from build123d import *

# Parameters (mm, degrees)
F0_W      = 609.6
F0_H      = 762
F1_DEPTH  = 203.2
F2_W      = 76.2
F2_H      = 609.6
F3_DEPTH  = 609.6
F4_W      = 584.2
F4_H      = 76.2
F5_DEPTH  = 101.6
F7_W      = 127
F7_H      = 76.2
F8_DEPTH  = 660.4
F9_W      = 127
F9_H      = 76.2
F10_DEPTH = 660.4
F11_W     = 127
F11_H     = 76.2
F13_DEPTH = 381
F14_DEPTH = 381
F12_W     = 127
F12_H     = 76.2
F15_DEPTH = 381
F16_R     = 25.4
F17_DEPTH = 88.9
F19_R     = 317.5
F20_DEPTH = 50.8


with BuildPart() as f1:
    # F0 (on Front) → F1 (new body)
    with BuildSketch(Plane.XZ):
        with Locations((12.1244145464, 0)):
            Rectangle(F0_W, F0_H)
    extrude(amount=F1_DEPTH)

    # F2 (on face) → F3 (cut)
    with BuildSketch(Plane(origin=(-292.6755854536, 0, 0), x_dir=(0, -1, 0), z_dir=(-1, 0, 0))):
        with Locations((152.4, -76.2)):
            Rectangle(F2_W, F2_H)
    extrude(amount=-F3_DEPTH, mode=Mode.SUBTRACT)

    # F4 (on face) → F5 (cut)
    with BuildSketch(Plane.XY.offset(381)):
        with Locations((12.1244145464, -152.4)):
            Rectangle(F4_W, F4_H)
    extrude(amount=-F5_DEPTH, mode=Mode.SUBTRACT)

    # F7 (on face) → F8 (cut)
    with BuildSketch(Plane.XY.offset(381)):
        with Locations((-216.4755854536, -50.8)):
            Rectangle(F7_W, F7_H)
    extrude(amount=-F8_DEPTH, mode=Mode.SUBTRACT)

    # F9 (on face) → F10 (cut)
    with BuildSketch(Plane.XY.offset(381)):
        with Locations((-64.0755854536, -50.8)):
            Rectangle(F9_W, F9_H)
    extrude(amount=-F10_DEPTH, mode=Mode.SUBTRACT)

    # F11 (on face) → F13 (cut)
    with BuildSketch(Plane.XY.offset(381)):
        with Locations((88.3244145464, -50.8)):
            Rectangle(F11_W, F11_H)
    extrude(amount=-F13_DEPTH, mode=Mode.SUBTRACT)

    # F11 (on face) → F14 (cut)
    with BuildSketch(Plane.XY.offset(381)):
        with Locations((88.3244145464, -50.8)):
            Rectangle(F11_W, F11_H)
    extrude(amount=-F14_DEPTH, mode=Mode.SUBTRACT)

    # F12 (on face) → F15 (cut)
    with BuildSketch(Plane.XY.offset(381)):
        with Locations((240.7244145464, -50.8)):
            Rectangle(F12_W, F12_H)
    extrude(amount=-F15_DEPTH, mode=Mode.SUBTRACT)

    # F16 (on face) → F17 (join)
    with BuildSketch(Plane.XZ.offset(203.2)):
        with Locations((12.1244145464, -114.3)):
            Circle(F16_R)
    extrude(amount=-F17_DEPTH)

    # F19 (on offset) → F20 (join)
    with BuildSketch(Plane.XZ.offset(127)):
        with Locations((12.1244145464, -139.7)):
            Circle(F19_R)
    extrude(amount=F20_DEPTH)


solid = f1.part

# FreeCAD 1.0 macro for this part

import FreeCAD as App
import Part
import Sketcher

V = App.Vector
Q = App.Units.Quantity

doc = App.newDocument("Part")
body = doc.addObject("PartDesign::Body", "Body")

# Sketch on XZ plane
sketch1 = body.newObject("Sketcher::SketchObject", "Sketch")
sketch1.AttachmentSupport = (doc.getObject("XZ_Plane"), [""])
sketch1.MapMode = "FlatFace"
sketch1.addGeometry(Part.LineSegment(V(-293, 381, 0), V(-293, -381, 0)), False)
sketch1.addGeometry(Part.LineSegment(V(-293, -381, 0), V(317, -381, 0)), False)
sketch1.addGeometry(Part.LineSegment(V(317, -381, 0), V(317, 381, 0)), False)
sketch1.addGeometry(Part.LineSegment(V(317, 381, 0), V(-293, 381, 0)), False)
sketch1.addConstraint(Sketcher.Constraint("Coincident", 0, 2, 1, 1))
sketch1.addConstraint(Sketcher.Constraint("Coincident", 1, 2, 2, 1))
sketch1.addConstraint(Sketcher.Constraint("Coincident", 2, 2, 3, 1))
sketch1.addConstraint(Sketcher.Constraint("Coincident", 3, 2, 0, 1))
sketch1.addConstraint(Sketcher.Constraint("Vertical", 0))
sketch1.addConstraint(Sketcher.Constraint("Horizontal", 1))
sketch1.addConstraint(Sketcher.Constraint("Vertical", 2))
sketch1.addConstraint(Sketcher.Constraint("Horizontal", 3))
sketch1.addConstraint(Sketcher.Constraint("DistanceX", 1, 1, 1, 2, Q("24 in")))
sketch1.addConstraint(Sketcher.Constraint("DistanceY", 0, 2, 0, 1, Q("30 in")))
sketch1.addConstraint(Sketcher.Constraint("DistanceY", 0, 2, -1, 1, Q("15 in")))
sketch1.addConstraint(Sketcher.Constraint("DistanceX", 0, 2, -1, 1, Q("292.675585 mm")))
pad1 = body.newObject("PartDesign::Pad", "Pad")
pad1.Profile = sketch1
pad1.Length = Q("8 in")

# Sketch on YZ plane
sketch2 = body.newObject("Sketcher::SketchObject", "Sketch001")
sketch2.AttachmentSupport = (doc.getObject("YZ_Plane"), [""])
sketch2.MapMode = "FlatFace"
sketch2.AttachmentOffset = App.Placement(V(0, 0, -292.675585), App.Rotation())
sketch2.addGeometry(Part.LineSegment(V(-114, 229, 0), V(-114, -381, 0)), False)
sketch2.addGeometry(Part.LineSegment(V(-114, -381, 0), V(-190, -381, 0)), False)
sketch2.addGeometry(Part.LineSegment(V(-190, -381, 0), V(-190, 229, 0)), False)
sketch2.addGeometry(Part.LineSegment(V(-190, 229, 0), V(-114, 229, 0)), False)
sketch2.addConstraint(Sketcher.Constraint("Coincident", 0, 2, 1, 1))
sketch2.addConstraint(Sketcher.Constraint("Coincident", 1, 2, 2, 1))
sketch2.addConstraint(Sketcher.Constraint("Coincident", 2, 2, 3, 1))
sketch2.addConstraint(Sketcher.Constraint("Coincident", 3, 2, 0, 1))
sketch2.addConstraint(Sketcher.Constraint("Vertical", 0))
sketch2.addConstraint(Sketcher.Constraint("Horizontal", 1))
sketch2.addConstraint(Sketcher.Constraint("Vertical", 2))
sketch2.addConstraint(Sketcher.Constraint("Horizontal", 3))
sketch2.addConstraint(Sketcher.Constraint("DistanceX", 1, 2, 1, 1, Q("3 in")))
sketch2.addConstraint(Sketcher.Constraint("DistanceY", 0, 2, 0, 1, Q("24 in")))
sketch2.addConstraint(Sketcher.Constraint("DistanceY", 0, 2, -1, 1, Q("15 in")))
sketch2.addConstraint(Sketcher.Constraint("DistanceX", 0, 2, -1, 1, Q("4.5 in")))
pocket1 = body.newObject("PartDesign::Pocket", "Pocket")
pocket1.Profile = sketch2
pocket1.Length = Q("24 in")
pocket1.Reversed = True

# Sketch on XY plane
sketch3 = body.newObject("Sketcher::SketchObject", "Sketch002")
sketch3.AttachmentSupport = (doc.getObject("XY_Plane"), [""])
sketch3.MapMode = "FlatFace"
sketch3.AttachmentOffset = App.Placement(V(0, 0, 15 * 25.4), App.Rotation())
sketch3.addGeometry(Part.LineSegment(V(-280, -114, 0), V(-280, -190, 0)), False)
sketch3.addGeometry(Part.LineSegment(V(-280, -190, 0), V(304, -190, 0)), False)
sketch3.addGeometry(Part.LineSegment(V(304, -190, 0), V(304, -114, 0)), False)
sketch3.addGeometry(Part.LineSegment(V(304, -114, 0), V(-280, -114, 0)), False)
sketch3.addConstraint(Sketcher.Constraint("Coincident", 0, 2, 1, 1))
sketch3.addConstraint(Sketcher.Constraint("Coincident", 1, 2, 2, 1))
sketch3.addConstraint(Sketcher.Constraint("Coincident", 2, 2, 3, 1))
sketch3.addConstraint(Sketcher.Constraint("Coincident", 3, 2, 0, 1))
sketch3.addConstraint(Sketcher.Constraint("Vertical", 0))
sketch3.addConstraint(Sketcher.Constraint("Horizontal", 1))
sketch3.addConstraint(Sketcher.Constraint("Vertical", 2))
sketch3.addConstraint(Sketcher.Constraint("Horizontal", 3))
sketch3.addConstraint(Sketcher.Constraint("DistanceX", 1, 1, 1, 2, Q("23 in")))
sketch3.addConstraint(Sketcher.Constraint("DistanceY", 0, 2, 0, 1, Q("3 in")))
sketch3.addConstraint(Sketcher.Constraint("DistanceY", 0, 2, -1, 1, Q("7.5 in")))
sketch3.addConstraint(Sketcher.Constraint("DistanceX", 0, 2, -1, 1, Q("279.975585 mm")))
pocket2 = body.newObject("PartDesign::Pocket", "Pocket001")
pocket2.Profile = sketch3
pocket2.Length = Q("4 in")

# Sketch on XY plane
sketch4 = body.newObject("Sketcher::SketchObject", "Sketch003")
sketch4.AttachmentSupport = (doc.getObject("XY_Plane"), [""])
sketch4.MapMode = "FlatFace"
sketch4.AttachmentOffset = App.Placement(V(0, 0, 15 * 25.4), App.Rotation())
sketch4.addGeometry(Part.LineSegment(V(-280, -13, 0), V(-280, -89, 0)), False)
sketch4.addGeometry(Part.LineSegment(V(-280, -89, 0), V(-153, -89, 0)), False)
sketch4.addGeometry(Part.LineSegment(V(-153, -89, 0), V(-153, -13, 0)), False)
sketch4.addGeometry(Part.LineSegment(V(-153, -13, 0), V(-280, -13, 0)), False)
sketch4.addConstraint(Sketcher.Constraint("Coincident", 0, 2, 1, 1))
sketch4.addConstraint(Sketcher.Constraint("Coincident", 1, 2, 2, 1))
sketch4.addConstraint(Sketcher.Constraint("Coincident", 2, 2, 3, 1))
sketch4.addConstraint(Sketcher.Constraint("Coincident", 3, 2, 0, 1))
sketch4.addConstraint(Sketcher.Constraint("Vertical", 0))
sketch4.addConstraint(Sketcher.Constraint("Horizontal", 1))
sketch4.addConstraint(Sketcher.Constraint("Vertical", 2))
sketch4.addConstraint(Sketcher.Constraint("Horizontal", 3))
sketch4.addConstraint(Sketcher.Constraint("DistanceX", 1, 1, 1, 2, Q("5 in")))
sketch4.addConstraint(Sketcher.Constraint("DistanceY", 0, 2, 0, 1, Q("3 in")))
sketch4.addConstraint(Sketcher.Constraint("DistanceY", 0, 2, -1, 1, Q("3.5 in")))
sketch4.addConstraint(Sketcher.Constraint("DistanceX", 0, 2, -1, 1, Q("279.975585 mm")))
pocket3 = body.newObject("PartDesign::Pocket", "Pocket002")
pocket3.Profile = sketch4
pocket3.Length = Q("26 in")

# Sketch on XY plane
sketch5 = body.newObject("Sketcher::SketchObject", "Sketch004")
sketch5.AttachmentSupport = (doc.getObject("XY_Plane"), [""])
sketch5.MapMode = "FlatFace"
sketch5.AttachmentOffset = App.Placement(V(0, 0, 15 * 25.4), App.Rotation())
sketch5.addGeometry(Part.LineSegment(V(-128, -13, 0), V(-128, -89, 0)), False)
sketch5.addGeometry(Part.LineSegment(V(-128, -89, 0), V(-1, -89, 0)), False)
sketch5.addGeometry(Part.LineSegment(V(-1, -89, 0), V(-1, -13, 0)), False)
sketch5.addGeometry(Part.LineSegment(V(-1, -13, 0), V(-128, -13, 0)), False)
sketch5.addConstraint(Sketcher.Constraint("Coincident", 0, 2, 1, 1))
sketch5.addConstraint(Sketcher.Constraint("Coincident", 1, 2, 2, 1))
sketch5.addConstraint(Sketcher.Constraint("Coincident", 2, 2, 3, 1))
sketch5.addConstraint(Sketcher.Constraint("Coincident", 3, 2, 0, 1))
sketch5.addConstraint(Sketcher.Constraint("Vertical", 0))
sketch5.addConstraint(Sketcher.Constraint("Horizontal", 1))
sketch5.addConstraint(Sketcher.Constraint("Vertical", 2))
sketch5.addConstraint(Sketcher.Constraint("Horizontal", 3))
sketch5.addConstraint(Sketcher.Constraint("DistanceX", 1, 1, 1, 2, Q("5 in")))
sketch5.addConstraint(Sketcher.Constraint("DistanceY", 0, 2, 0, 1, Q("3 in")))
sketch5.addConstraint(Sketcher.Constraint("DistanceY", 0, 2, -1, 1, Q("3.5 in")))
sketch5.addConstraint(Sketcher.Constraint("DistanceX", 0, 2, -1, 1, Q("127.575585 mm")))
pocket4 = body.newObject("PartDesign::Pocket", "Pocket003")
pocket4.Profile = sketch5
pocket4.Length = Q("26 in")

# Sketch on XY plane
sketch6 = body.newObject("Sketcher::SketchObject", "Sketch005")
sketch6.AttachmentSupport = (doc.getObject("XY_Plane"), [""])
sketch6.MapMode = "FlatFace"
sketch6.AttachmentOffset = App.Placement(V(0, 0, 15 * 25.4), App.Rotation())
sketch6.addGeometry(Part.LineSegment(V(25, -13, 0), V(25, -89, 0)), False)
sketch6.addGeometry(Part.LineSegment(V(25, -89, 0), V(152, -89, 0)), False)
sketch6.addGeometry(Part.LineSegment(V(152, -89, 0), V(152, -13, 0)), False)
sketch6.addGeometry(Part.LineSegment(V(152, -13, 0), V(25, -13, 0)), False)
sketch6.addConstraint(Sketcher.Constraint("Coincident", 0, 2, 1, 1))
sketch6.addConstraint(Sketcher.Constraint("Coincident", 1, 2, 2, 1))
sketch6.addConstraint(Sketcher.Constraint("Coincident", 2, 2, 3, 1))
sketch6.addConstraint(Sketcher.Constraint("Coincident", 3, 2, 0, 1))
sketch6.addConstraint(Sketcher.Constraint("Vertical", 0))
sketch6.addConstraint(Sketcher.Constraint("Horizontal", 1))
sketch6.addConstraint(Sketcher.Constraint("Vertical", 2))
sketch6.addConstraint(Sketcher.Constraint("Horizontal", 3))
sketch6.addConstraint(Sketcher.Constraint("DistanceX", 1, 1, 1, 2, Q("5 in")))
sketch6.addConstraint(Sketcher.Constraint("DistanceY", 0, 2, 0, 1, Q("3 in")))
sketch6.addConstraint(Sketcher.Constraint("DistanceY", 0, 2, -1, 1, Q("3.5 in")))
sketch6.addConstraint(Sketcher.Constraint("DistanceX", -1, 1, 0, 2, Q("24.824415 mm")))
pocket5 = body.newObject("PartDesign::Pocket", "Pocket004")
pocket5.Profile = sketch6
pocket5.Length = Q("15 in")

# Sketch on XY plane
sketch7 = body.newObject("Sketcher::SketchObject", "Sketch006")
sketch7.AttachmentSupport = (doc.getObject("XY_Plane"), [""])
sketch7.MapMode = "FlatFace"
sketch7.AttachmentOffset = App.Placement(V(0, 0, 15 * 25.4), App.Rotation())
sketch7.addGeometry(Part.LineSegment(V(25, -13, 0), V(25, -89, 0)), False)
sketch7.addGeometry(Part.LineSegment(V(25, -89, 0), V(152, -89, 0)), False)
sketch7.addGeometry(Part.LineSegment(V(152, -89, 0), V(152, -13, 0)), False)
sketch7.addGeometry(Part.LineSegment(V(152, -13, 0), V(25, -13, 0)), False)
sketch7.addConstraint(Sketcher.Constraint("Coincident", 0, 2, 1, 1))
sketch7.addConstraint(Sketcher.Constraint("Coincident", 1, 2, 2, 1))
sketch7.addConstraint(Sketcher.Constraint("Coincident", 2, 2, 3, 1))
sketch7.addConstraint(Sketcher.Constraint("Coincident", 3, 2, 0, 1))
sketch7.addConstraint(Sketcher.Constraint("Vertical", 0))
sketch7.addConstraint(Sketcher.Constraint("Horizontal", 1))
sketch7.addConstraint(Sketcher.Constraint("Vertical", 2))
sketch7.addConstraint(Sketcher.Constraint("Horizontal", 3))
sketch7.addConstraint(Sketcher.Constraint("DistanceX", 1, 1, 1, 2, Q("5 in")))
sketch7.addConstraint(Sketcher.Constraint("DistanceY", 0, 2, 0, 1, Q("3 in")))
sketch7.addConstraint(Sketcher.Constraint("DistanceY", 0, 2, -1, 1, Q("3.5 in")))
sketch7.addConstraint(Sketcher.Constraint("DistanceX", -1, 1, 0, 2, Q("24.824415 mm")))
pocket6 = body.newObject("PartDesign::Pocket", "Pocket005")
pocket6.Profile = sketch7
pocket6.Length = Q("15 in")

# Sketch on XY plane
sketch8 = body.newObject("Sketcher::SketchObject", "Sketch007")
sketch8.AttachmentSupport = (doc.getObject("XY_Plane"), [""])
sketch8.MapMode = "FlatFace"
sketch8.AttachmentOffset = App.Placement(V(0, 0, 15 * 25.4), App.Rotation())
sketch8.addGeometry(Part.LineSegment(V(177, -13, 0), V(177, -89, 0)), False)
sketch8.addGeometry(Part.LineSegment(V(177, -89, 0), V(304, -89, 0)), False)
sketch8.addGeometry(Part.LineSegment(V(304, -89, 0), V(304, -13, 0)), False)
sketch8.addGeometry(Part.LineSegment(V(304, -13, 0), V(177, -13, 0)), False)
sketch8.addConstraint(Sketcher.Constraint("Coincident", 0, 2, 1, 1))
sketch8.addConstraint(Sketcher.Constraint("Coincident", 1, 2, 2, 1))
sketch8.addConstraint(Sketcher.Constraint("Coincident", 2, 2, 3, 1))
sketch8.addConstraint(Sketcher.Constraint("Coincident", 3, 2, 0, 1))
sketch8.addConstraint(Sketcher.Constraint("Vertical", 0))
sketch8.addConstraint(Sketcher.Constraint("Horizontal", 1))
sketch8.addConstraint(Sketcher.Constraint("Vertical", 2))
sketch8.addConstraint(Sketcher.Constraint("Horizontal", 3))
sketch8.addConstraint(Sketcher.Constraint("DistanceX", 1, 1, 1, 2, Q("5 in")))
sketch8.addConstraint(Sketcher.Constraint("DistanceY", 0, 2, 0, 1, Q("3 in")))
sketch8.addConstraint(Sketcher.Constraint("DistanceY", 0, 2, -1, 1, Q("3.5 in")))
sketch8.addConstraint(Sketcher.Constraint("DistanceX", -1, 1, 0, 2, Q("177.224415 mm")))
pocket7 = body.newObject("PartDesign::Pocket", "Pocket006")
pocket7.Profile = sketch8
pocket7.Length = Q("15 in")

# Sketch on XZ plane
sketch9 = body.newObject("Sketcher::SketchObject", "Sketch008")
sketch9.AttachmentSupport = (doc.getObject("XZ_Plane"), [""])
sketch9.MapMode = "FlatFace"
sketch9.AttachmentOffset = App.Placement(V(0, 0, 8 * 25.4), App.Rotation())
sketch9.addGeometry(Part.Circle(V(12, -114, 0), V(0, 0, 1), 25), False)
sketch9.addConstraint(Sketcher.Constraint("Diameter", 0, Q("2 in")))
sketch9.addConstraint(Sketcher.Constraint("DistanceY", 0, 3, -1, 1, Q("4.5 in")))
sketch9.addConstraint(Sketcher.Constraint("DistanceX", -1, 1, 0, 3, Q("12.124415 mm")))
pad2 = body.newObject("PartDesign::Pad", "Pad001")
pad2.Profile = sketch9
pad2.Length = Q("3.5 in")
pad2.Reversed = True

# Sketch on XZ plane
sketch10 = body.newObject("Sketcher::SketchObject", "Sketch009")
sketch10.AttachmentSupport = (doc.getObject("XZ_Plane"), [""])
sketch10.MapMode = "FlatFace"
sketch10.AttachmentOffset = App.Placement(V(0, 0, 5 * 25.4), App.Rotation())
sketch10.addGeometry(Part.Circle(V(12, -140, 0), V(0, 0, 1), 318), False)
sketch10.addConstraint(Sketcher.Constraint("Diameter", 0, Q("25 in")))
sketch10.addConstraint(Sketcher.Constraint("DistanceY", 0, 3, -1, 1, Q("5.5 in")))
sketch10.addConstraint(Sketcher.Constraint("DistanceX", -1, 1, 0, 3, Q("12.124415 mm")))
pad3 = body.newObject("PartDesign::Pad", "Pad002")
pad3.Profile = sketch10
pad3.Length = Q("2 in")

doc.recompute()
